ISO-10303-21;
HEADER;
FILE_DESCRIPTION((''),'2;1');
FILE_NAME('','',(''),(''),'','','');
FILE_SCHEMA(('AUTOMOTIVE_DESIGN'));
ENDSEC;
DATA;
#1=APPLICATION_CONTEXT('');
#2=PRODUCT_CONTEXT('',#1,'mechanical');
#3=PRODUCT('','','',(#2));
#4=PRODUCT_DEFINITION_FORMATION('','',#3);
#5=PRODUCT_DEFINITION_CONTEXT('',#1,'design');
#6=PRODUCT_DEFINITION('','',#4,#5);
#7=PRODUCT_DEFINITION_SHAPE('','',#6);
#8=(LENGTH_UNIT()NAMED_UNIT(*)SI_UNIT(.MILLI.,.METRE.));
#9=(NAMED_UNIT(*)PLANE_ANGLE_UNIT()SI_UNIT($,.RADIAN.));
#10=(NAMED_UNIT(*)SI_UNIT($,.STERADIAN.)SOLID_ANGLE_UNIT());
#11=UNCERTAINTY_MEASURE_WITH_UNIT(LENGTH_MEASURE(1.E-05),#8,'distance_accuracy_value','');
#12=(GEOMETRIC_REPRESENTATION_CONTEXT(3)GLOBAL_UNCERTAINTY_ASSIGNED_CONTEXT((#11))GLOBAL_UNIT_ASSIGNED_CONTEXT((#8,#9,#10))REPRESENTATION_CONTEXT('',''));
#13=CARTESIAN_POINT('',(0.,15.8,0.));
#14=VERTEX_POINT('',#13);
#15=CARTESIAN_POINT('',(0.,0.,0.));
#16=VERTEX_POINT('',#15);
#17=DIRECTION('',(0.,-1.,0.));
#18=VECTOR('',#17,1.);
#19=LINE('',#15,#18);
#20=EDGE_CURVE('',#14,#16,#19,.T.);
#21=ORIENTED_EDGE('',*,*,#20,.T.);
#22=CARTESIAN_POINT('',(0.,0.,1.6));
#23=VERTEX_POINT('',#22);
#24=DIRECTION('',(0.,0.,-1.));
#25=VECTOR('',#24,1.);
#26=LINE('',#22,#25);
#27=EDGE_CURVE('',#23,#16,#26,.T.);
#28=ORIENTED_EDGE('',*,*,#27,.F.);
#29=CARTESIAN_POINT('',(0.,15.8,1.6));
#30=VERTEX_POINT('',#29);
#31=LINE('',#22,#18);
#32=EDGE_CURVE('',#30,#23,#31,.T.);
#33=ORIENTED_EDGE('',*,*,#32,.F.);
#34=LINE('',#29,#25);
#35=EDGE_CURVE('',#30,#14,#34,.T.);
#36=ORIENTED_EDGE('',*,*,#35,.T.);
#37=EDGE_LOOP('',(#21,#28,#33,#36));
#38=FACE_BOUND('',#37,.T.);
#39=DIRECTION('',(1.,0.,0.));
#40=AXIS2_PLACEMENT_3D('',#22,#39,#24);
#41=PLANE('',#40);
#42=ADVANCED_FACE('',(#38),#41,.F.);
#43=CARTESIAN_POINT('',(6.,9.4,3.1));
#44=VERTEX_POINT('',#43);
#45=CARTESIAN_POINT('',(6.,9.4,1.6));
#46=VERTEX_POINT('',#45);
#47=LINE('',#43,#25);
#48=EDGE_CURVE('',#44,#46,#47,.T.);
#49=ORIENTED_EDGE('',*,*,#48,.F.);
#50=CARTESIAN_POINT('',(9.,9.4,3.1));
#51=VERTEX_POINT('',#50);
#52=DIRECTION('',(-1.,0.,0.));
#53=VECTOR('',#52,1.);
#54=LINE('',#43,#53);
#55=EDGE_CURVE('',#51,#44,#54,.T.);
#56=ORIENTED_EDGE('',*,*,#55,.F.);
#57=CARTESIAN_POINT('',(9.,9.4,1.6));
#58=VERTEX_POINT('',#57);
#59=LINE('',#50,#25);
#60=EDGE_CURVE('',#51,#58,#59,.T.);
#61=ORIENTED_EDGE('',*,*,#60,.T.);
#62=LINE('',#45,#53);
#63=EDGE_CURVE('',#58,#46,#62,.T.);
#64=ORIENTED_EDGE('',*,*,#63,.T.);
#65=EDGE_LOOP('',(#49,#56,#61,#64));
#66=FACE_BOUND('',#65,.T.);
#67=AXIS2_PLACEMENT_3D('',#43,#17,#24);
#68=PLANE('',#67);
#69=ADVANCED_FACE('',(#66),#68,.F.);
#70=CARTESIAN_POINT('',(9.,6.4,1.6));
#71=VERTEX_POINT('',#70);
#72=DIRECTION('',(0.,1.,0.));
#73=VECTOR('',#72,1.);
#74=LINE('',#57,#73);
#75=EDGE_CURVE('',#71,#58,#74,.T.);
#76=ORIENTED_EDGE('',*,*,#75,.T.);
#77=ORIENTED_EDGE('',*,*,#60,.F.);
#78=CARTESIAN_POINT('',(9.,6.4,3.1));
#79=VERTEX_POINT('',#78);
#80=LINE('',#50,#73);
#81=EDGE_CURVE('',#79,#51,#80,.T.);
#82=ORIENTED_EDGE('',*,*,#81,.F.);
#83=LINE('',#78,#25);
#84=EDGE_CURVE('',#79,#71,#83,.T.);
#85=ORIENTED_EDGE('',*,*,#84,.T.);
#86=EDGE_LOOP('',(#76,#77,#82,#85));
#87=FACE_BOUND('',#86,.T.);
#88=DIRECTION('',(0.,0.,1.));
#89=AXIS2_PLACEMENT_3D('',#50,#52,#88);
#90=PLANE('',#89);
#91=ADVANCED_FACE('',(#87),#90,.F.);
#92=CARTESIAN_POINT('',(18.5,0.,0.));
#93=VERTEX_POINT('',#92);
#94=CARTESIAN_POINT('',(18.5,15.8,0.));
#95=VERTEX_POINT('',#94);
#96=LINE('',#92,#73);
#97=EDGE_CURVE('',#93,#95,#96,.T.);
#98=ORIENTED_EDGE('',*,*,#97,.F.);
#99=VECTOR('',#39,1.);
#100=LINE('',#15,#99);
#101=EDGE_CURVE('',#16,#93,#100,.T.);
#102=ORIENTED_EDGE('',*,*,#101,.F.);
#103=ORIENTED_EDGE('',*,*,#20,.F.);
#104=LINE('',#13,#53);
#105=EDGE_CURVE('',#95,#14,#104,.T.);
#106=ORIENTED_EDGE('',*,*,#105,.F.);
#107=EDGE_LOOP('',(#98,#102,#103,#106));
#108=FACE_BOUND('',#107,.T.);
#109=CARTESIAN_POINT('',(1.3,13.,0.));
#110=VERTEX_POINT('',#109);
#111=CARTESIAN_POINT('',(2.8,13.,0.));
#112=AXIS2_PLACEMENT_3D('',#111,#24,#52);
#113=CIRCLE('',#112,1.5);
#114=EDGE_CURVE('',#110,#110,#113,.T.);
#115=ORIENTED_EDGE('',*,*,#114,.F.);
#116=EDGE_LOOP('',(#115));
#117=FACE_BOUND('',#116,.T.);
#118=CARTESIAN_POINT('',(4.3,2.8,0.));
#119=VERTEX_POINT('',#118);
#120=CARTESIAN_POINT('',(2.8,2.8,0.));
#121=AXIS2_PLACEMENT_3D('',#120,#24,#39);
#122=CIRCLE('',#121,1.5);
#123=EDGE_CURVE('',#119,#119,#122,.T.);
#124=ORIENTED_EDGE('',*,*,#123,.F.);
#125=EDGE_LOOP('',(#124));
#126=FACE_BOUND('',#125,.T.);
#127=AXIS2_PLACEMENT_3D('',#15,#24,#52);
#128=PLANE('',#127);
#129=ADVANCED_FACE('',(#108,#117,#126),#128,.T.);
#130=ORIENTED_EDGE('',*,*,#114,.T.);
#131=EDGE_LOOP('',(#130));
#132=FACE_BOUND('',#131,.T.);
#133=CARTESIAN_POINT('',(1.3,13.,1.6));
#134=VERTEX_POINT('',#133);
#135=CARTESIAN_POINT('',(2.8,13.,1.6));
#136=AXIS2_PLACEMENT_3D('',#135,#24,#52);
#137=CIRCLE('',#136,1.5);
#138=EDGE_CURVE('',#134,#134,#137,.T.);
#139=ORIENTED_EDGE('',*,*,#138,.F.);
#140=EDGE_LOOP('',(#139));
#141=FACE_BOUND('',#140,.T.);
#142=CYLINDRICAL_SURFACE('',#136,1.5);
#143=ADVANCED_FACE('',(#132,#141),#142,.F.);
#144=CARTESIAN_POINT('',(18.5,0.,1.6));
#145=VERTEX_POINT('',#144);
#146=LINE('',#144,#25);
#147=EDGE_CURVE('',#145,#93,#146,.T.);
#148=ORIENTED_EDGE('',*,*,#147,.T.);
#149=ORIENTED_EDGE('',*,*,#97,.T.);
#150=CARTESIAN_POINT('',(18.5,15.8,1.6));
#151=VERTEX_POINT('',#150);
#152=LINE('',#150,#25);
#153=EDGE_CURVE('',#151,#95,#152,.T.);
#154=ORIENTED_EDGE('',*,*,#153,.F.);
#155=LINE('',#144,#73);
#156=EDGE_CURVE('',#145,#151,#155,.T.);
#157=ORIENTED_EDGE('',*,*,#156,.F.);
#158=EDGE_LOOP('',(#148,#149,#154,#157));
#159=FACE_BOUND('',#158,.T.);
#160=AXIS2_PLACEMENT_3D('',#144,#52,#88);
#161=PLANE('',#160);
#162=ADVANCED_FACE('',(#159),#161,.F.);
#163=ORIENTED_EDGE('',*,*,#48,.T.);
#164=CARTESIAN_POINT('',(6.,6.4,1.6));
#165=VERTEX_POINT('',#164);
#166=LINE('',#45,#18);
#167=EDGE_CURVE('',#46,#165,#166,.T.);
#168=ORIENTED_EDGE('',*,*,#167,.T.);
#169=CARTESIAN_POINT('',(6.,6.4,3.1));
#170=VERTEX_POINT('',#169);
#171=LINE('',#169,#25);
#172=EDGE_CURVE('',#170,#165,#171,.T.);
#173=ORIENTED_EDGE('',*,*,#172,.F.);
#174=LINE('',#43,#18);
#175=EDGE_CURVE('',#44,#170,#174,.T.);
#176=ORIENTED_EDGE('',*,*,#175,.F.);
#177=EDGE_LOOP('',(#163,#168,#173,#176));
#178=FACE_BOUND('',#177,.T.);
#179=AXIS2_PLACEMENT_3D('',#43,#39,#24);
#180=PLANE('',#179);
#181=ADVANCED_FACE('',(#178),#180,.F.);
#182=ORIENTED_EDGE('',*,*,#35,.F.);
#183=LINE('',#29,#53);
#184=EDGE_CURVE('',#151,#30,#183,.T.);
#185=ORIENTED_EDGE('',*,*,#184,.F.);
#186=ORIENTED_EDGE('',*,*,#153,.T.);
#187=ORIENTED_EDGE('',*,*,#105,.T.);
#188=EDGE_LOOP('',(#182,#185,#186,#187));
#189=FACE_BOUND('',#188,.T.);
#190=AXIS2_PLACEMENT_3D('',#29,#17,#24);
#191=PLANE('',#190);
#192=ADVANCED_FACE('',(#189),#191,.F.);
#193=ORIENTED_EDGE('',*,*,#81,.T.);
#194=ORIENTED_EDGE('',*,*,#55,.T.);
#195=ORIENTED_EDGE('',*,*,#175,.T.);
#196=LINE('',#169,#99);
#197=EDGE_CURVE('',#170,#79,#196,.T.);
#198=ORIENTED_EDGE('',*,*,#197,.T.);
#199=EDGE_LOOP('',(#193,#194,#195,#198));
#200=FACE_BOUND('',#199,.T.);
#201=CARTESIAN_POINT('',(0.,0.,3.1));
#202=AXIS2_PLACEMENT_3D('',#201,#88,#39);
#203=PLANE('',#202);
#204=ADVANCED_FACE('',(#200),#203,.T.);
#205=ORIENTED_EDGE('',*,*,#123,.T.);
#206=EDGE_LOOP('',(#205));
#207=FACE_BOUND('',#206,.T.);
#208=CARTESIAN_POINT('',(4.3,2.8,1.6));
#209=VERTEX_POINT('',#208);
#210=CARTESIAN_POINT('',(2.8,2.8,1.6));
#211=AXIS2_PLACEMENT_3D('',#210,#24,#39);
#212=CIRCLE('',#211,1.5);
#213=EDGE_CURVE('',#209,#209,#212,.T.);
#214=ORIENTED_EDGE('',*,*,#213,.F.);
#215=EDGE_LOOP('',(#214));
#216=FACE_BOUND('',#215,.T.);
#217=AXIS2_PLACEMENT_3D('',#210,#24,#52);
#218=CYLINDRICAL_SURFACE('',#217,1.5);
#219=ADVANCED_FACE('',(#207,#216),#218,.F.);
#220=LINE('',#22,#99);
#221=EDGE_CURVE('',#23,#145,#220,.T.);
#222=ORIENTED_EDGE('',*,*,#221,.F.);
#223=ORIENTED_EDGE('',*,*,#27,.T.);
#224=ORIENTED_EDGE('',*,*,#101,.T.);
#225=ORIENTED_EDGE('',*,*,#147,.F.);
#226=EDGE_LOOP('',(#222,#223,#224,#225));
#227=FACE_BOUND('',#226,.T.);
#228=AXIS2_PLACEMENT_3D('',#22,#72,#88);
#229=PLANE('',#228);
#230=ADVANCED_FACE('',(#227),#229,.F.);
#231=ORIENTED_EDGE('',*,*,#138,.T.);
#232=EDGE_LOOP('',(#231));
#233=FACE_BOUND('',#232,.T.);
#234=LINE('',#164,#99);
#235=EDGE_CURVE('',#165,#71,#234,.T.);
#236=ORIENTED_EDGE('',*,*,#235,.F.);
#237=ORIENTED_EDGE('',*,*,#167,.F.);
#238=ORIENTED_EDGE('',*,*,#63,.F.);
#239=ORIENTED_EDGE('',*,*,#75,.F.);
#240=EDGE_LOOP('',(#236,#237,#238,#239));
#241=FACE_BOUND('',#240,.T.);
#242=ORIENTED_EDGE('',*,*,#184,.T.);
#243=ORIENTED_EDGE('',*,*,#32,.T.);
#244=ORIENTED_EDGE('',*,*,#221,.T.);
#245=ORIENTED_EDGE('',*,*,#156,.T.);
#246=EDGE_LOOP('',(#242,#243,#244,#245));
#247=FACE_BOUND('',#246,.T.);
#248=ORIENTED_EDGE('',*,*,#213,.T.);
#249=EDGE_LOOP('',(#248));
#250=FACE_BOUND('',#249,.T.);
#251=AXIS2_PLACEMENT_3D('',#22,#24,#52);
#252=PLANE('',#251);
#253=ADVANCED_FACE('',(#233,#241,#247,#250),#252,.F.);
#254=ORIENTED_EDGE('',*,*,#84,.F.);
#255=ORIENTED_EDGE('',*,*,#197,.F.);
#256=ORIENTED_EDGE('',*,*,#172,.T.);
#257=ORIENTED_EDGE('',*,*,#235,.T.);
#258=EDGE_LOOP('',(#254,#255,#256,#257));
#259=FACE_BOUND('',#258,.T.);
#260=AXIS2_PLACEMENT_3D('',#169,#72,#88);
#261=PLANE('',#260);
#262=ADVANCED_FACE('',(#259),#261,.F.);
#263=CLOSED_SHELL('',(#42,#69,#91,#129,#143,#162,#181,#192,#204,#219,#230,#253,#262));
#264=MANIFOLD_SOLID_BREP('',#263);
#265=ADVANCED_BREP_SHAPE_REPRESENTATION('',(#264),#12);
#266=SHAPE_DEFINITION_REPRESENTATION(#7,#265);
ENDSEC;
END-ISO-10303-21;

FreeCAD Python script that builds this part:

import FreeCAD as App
import Part
import Sketcher
from FreeCAD import Vector


def add_polygon(sketch, points):
    """Adds a closed chain of lines whose ends are joined by coincident constraints."""
    first, n = sketch.GeometryCount, len(points)
    for a, b in zip(points, points[1:] + points[:1]):
        sketch.addGeometry(Part.LineSegment(App.Vector(*a, 0), App.Vector(*b, 0)), False)
    for i in range(n):
        sketch.addConstraint(Sketcher.Constraint("Coincident", first + i, 2, first + (i + 1) % n, 1))

doc = App.newDocument("Part")
body = doc.addObject("PartDesign::Body", "Body")

sketch1 = body.newObject("Sketcher::SketchObject", "Sketch")
sketch1.AttachmentSupport = (doc.getObject("XY_Plane"), [""])
sketch1.MapMode = "FlatFace"
add_polygon(sketch1, [(0, 15.8), (0, 0), (18.5, 0), (18.5, 15.8)])
sketch1.addConstraint([
    Sketcher.Constraint("Vertical", 0),
    Sketcher.Constraint("Horizontal", 1),
    Sketcher.Constraint("Vertical", 2),
    Sketcher.Constraint("Horizontal", 3),
    Sketcher.Constraint("Coincident", 0, 2, -1, 1),
    Sketcher.Constraint("DistanceX", 1, 1, 1, 2, 18.5),
    Sketcher.Constraint("DistanceY", 0, 2, 0, 1, 15.8),
])
pad1 = body.newObject("PartDesign::Pad", "Pad")
pad1.Profile = sketch1
pad1.Length = 1.6

sketch2 = body.newObject("Sketcher::SketchObject", "Sketch001")
sketch2.AttachmentSupport = (doc.getObject("XY_Plane"), [""])
sketch2.MapMode = "FlatFace"
sketch2.addGeometry([
    Part.Circle(Vector(2.8, 13, 0), Vector(0, 0, 1), 1.5),
    Part.Circle(Vector(2.8, 2.8, 0), Vector(0, 0, 1), 1.5),
], False)
sketch2.addConstraint([
    Sketcher.Constraint("Equal", 0, 1),
    Sketcher.Constraint("Vertical", 0, 3, 1, 3),
    Sketcher.Constraint("Diameter", 0, 3.0),
    Sketcher.Constraint("DistanceY", -1, 1, 0, 3, 13.0),
    Sketcher.Constraint("DistanceX", -1, 1, 0, 3, 2.8),
    Sketcher.Constraint("DistanceY", -1, 1, 1, 3, 2.8),
])
pocket1 = body.newObject("PartDesign::Pocket", "Pocket")
pocket1.Profile = sketch2
pocket1.Type = "ThroughAll"
pocket1.Reversed = True

sketch3 = body.newObject("Sketcher::SketchObject", "Sketch002")
sketch3.AttachmentSupport = (doc.getObject("XY_Plane"), [""])
sketch3.MapMode = "FlatFace"
sketch3.AttachmentOffset = App.Placement(Vector(0, 0, 1.6), App.Rotation())
add_polygon(sketch3, [(6, 9.4), (6, 6.4), (9, 6.4), (9, 9.4)])
sketch3.addConstraint([
    Sketcher.Constraint("Vertical", 0),
    Sketcher.Constraint("Horizontal", 1),
    Sketcher.Constraint("Vertical", 2),
    Sketcher.Constraint("Horizontal", 3),
    Sketcher.Constraint("Equal", 3, 0),
    Sketcher.Constraint("DistanceX", 1, 1, 1, 2, 3.0),
    Sketcher.Constraint("DistanceX", -1, 1, 0, 2, 6.0),
    Sketcher.Constraint("DistanceY", -1, 1, 0, 2, 6.4),
])
pad2 = body.newObject("PartDesign::Pad", "Pad001")
pad2.Profile = sketch3
pad2.Length = 1.5

doc.recompute()
